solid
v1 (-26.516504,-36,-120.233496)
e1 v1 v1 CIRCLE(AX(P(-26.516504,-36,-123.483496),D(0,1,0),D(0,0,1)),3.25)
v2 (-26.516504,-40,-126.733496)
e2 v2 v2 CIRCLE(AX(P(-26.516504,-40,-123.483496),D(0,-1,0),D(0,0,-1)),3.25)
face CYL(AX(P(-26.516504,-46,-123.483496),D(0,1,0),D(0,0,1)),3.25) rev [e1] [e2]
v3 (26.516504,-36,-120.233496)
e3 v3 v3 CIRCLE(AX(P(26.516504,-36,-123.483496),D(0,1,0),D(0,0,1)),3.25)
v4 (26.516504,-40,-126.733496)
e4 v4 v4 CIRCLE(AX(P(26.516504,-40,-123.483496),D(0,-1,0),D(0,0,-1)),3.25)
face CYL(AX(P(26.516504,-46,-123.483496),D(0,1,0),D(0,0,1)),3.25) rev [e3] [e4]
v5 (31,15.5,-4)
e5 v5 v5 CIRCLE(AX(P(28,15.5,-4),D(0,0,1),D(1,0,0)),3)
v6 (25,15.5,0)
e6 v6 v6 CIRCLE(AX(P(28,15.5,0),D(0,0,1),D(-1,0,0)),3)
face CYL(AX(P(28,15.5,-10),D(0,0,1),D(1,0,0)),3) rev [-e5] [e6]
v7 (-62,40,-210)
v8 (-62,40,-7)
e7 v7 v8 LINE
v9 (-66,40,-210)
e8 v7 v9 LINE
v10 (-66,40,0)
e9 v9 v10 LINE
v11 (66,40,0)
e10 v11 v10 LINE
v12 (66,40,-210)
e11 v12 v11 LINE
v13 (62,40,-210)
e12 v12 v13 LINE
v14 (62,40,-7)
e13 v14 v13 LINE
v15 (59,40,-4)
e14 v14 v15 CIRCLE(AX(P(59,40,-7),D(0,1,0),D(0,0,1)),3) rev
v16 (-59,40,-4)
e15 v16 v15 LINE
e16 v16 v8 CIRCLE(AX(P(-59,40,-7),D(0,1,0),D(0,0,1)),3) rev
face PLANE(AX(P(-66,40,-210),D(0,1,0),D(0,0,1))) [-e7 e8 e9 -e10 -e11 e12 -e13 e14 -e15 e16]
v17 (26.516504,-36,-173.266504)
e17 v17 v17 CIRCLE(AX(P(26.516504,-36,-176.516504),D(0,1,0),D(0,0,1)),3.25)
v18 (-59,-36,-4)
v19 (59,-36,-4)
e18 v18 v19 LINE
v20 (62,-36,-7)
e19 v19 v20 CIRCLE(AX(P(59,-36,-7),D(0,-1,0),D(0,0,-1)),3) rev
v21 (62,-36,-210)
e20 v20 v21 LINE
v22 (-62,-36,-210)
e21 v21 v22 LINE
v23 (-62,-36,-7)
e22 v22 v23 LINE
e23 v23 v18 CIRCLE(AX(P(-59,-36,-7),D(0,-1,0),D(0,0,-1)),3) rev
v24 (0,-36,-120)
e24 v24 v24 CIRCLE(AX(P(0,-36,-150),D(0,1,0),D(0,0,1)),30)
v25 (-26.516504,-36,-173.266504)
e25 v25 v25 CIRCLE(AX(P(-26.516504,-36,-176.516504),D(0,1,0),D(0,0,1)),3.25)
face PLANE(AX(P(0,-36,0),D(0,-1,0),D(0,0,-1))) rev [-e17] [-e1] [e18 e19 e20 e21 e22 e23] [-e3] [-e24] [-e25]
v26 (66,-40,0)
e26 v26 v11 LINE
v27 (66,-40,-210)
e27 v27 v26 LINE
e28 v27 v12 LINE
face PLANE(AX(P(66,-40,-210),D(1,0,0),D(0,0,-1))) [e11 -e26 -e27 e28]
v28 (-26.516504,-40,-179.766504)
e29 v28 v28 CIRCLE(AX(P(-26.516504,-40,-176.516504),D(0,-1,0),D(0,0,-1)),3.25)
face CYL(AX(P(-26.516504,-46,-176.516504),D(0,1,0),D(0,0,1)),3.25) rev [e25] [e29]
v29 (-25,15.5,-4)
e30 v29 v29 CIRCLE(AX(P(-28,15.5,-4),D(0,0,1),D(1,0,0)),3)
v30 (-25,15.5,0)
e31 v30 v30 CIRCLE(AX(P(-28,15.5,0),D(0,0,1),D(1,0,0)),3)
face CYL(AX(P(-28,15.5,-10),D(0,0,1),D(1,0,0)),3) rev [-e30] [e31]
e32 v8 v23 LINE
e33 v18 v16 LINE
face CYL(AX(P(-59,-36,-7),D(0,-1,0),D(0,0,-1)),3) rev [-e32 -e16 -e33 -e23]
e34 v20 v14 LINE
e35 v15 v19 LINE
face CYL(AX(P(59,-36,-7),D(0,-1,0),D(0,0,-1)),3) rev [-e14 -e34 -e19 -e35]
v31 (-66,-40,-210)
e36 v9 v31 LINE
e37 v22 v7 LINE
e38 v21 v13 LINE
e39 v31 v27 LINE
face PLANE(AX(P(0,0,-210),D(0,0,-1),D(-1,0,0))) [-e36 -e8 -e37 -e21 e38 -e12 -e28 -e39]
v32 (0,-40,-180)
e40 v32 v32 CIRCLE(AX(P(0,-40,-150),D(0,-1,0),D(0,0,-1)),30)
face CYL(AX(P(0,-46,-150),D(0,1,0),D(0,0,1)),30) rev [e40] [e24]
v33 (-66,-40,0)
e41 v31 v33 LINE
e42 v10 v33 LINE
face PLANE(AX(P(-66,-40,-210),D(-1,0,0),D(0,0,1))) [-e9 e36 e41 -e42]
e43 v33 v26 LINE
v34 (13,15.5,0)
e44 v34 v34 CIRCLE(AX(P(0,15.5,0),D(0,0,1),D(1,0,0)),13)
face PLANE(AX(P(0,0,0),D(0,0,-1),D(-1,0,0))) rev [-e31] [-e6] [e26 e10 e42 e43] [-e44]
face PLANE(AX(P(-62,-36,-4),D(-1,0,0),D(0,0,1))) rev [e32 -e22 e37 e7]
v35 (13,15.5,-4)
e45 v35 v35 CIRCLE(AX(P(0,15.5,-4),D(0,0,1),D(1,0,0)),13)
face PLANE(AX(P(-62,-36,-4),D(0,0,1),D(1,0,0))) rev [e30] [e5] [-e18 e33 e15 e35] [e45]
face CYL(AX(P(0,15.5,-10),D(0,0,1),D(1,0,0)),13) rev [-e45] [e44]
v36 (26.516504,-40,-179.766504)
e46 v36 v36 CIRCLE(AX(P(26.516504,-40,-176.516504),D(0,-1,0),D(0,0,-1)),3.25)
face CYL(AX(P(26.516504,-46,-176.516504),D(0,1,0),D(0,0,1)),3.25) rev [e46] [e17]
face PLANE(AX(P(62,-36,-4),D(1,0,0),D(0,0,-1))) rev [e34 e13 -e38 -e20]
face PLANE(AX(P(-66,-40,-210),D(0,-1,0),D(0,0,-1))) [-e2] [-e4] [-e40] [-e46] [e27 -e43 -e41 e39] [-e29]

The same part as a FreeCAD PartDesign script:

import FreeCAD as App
import Part
import Sketcher
Q = App.Units.Quantity


def edges_at(feature, points):
    """Names of the edges that pass closest to the given points."""
    edges = feature.Shape.Edges
    near = lambda p: min(range(len(edges)), key=lambda i: edges[i].distToShape(Part.Vertex(*p))[0])
    return sorted({f"Edge{near(p) + 1}" for p in points})


def add_polygon(sketch, points):
    """Adds a closed chain of lines whose ends are joined by coincident constraints."""
    first, n = sketch.GeometryCount, len(points)
    for a, b in zip(points, points[1:] + points[:1]):
        sketch.addGeometry(Part.LineSegment(App.Vector(*a, 0), App.Vector(*b, 0)), False)
    for i in range(n):
        sketch.addConstraint(Sketcher.Constraint("Coincident", first + i, 2, first + (i + 1) % n, 1))

doc = App.newDocument("Part")
params = doc.addObject("Spreadsheet::Sheet", "Params")
for row, (alias, value) in enumerate([
    ("sketch1_width", "132 mm"),
    ("sketch1_height", "80 mm"),
    ("pad1_length", "210 mm"),
    ("sketch2_width", "124 mm"),
    ("sketch2_height", "206 mm"),
    ("pocket1_length", "76 mm"),
    ("sketch3_diameter", "26 mm"),
    ("sketch3_diameter2", "6 mm"),
    ("pocket2_length", "10 mm"),
    ("sketch4_diameter", "60 mm"),
    ("sketch4_diameter2", "6.5 mm"),
    ("pocket3_length", "10 mm"),
    ("fillet_radius", "3 mm"),
], start=1):
    params.set(f"A{row}", alias)
    params.set(f"B{row}", "=" + value)
    params.setAlias(f"B{row}", alias)

body = doc.addObject("PartDesign::Body", "Body")

sketch1 = body.newObject("Sketcher::SketchObject", "Sketch")
sketch1.AttachmentSupport = (doc.getObject("XY_Plane"), [""])
sketch1.MapMode = "FlatFace"
add_polygon(sketch1, [(-66, 40), (-66, -40), (66, -40), (66, 40)])
sketch1.addConstraint(Sketcher.Constraint("Vertical", 0))
sketch1.addConstraint(Sketcher.Constraint("Horizontal", 1))
sketch1.addConstraint(Sketcher.Constraint("Vertical", 2))
sketch1.addConstraint(Sketcher.Constraint("Horizontal", 3))
sketch1.addConstraint(Sketcher.Constraint("Symmetric", 0, 2, 2, 2, -1, 1))
sketch1.addConstraint(Sketcher.Constraint("DistanceX", 1, 1, 1, 2, Q("132 mm")))
sketch1.addConstraint(Sketcher.Constraint("DistanceY", 0, 2, 0, 1, Q("80 mm")))
sketch1.setExpression("Constraints[9]", "Params.sketch1_width")
sketch1.setExpression("Constraints[10]", "Params.sketch1_height")
pad1 = body.newObject("PartDesign::Pad", "Pad")
pad1.Profile = sketch1
pad1.setExpression("Length", "Params.pad1_length")
pad1.Reversed = True

sketch2 = body.newObject("Sketcher::SketchObject", "Sketch001")
sketch2.AttachmentSupport = (doc.getObject("XZ_Plane"), [""])
sketch2.MapMode = "FlatFace"
sketch2.AttachmentOffset = App.Placement(App.Vector(0, 0, -40), App.Rotation())
add_polygon(sketch2, [(-62, -210), (-62, -4), (62, -4), (62, -210)])
sketch2.addConstraint(Sketcher.Constraint("Vertical", 0))
sketch2.addConstraint(Sketcher.Constraint("Horizontal", 1))
sketch2.addConstraint(Sketcher.Constraint("Vertical", 2))
sketch2.addConstraint(Sketcher.Constraint("Horizontal", 3))
sketch2.addConstraint(Sketcher.Constraint("DistanceX", 1, 1, 1, 2, Q("124 mm")))
sketch2.addConstraint(Sketcher.Constraint("DistanceY", 0, 1, 0, 2, Q("206 mm")))
sketch2.addConstraint(Sketcher.Constraint("DistanceX", 0, 2, -1, 1, Q("62 mm")))
sketch2.addConstraint(Sketcher.Constraint("DistanceY", 0, 2, -1, 1, Q("4 mm")))
sketch2.setExpression("Constraints[8]", "Params.sketch2_width")
sketch2.setExpression("Constraints[9]", "Params.sketch2_height")
pocket1 = body.newObject("PartDesign::Pocket", "Pocket")
pocket1.Profile = sketch2
pocket1.setExpression("Length", "Params.pocket1_length")
pocket1.Reversed = True

sketch3 = body.newObject("Sketcher::SketchObject", "Sketch002")
sketch3.AttachmentSupport = (doc.getObject("XY_Plane"), [""])
sketch3.MapMode = "FlatFace"
sketch3.addGeometry(Part.Circle(App.Vector(0, 15.5, 0), App.Vector(0, 0, 1), 13), False)
sketch3.addGeometry(Part.Circle(App.Vector(-28, 15.5, 0), App.Vector(0, 0, 1), 3), False)
sketch3.addGeometry(Part.Circle(App.Vector(28, 15.5, 0), App.Vector(0, 0, 1), 3), False)
sketch3.addConstraint(Sketcher.Constraint("Equal", 1, 2))
sketch3.addConstraint(Sketcher.Constraint("Symmetric", 1, 3, 2, 3, -2))
sketch3.addConstraint(Sketcher.Constraint("PointOnObject", 0, 3, -2))
sketch3.addConstraint(Sketcher.Constraint("Horizontal", 0, 3, 1, 3))
sketch3.addConstraint(Sketcher.Constraint("Diameter", 0, Q("26 mm")))
sketch3.addConstraint(Sketcher.Constraint("Diameter", 1, Q("6 mm")))
sketch3.addConstraint(Sketcher.Constraint("DistanceX", 1, 3, -1, 1, Q("28 mm")))
sketch3.addConstraint(Sketcher.Constraint("DistanceY", -1, 1, 0, 3, Q("15.5 mm")))
sketch3.setExpression("Constraints[4]", "Params.sketch3_diameter")
sketch3.setExpression("Constraints[5]", "Params.sketch3_diameter2")
pocket2 = body.newObject("PartDesign::Pocket", "Pocket001")
pocket2.Profile = sketch3
pocket2.setExpression("Length", "Params.pocket2_length")

sketch4 = body.newObject("Sketcher::SketchObject", "Sketch003")
sketch4.AttachmentSupport = (doc.getObject("XZ_Plane"), [""])
sketch4.MapMode = "FlatFace"
sketch4.AttachmentOffset = App.Placement(App.Vector(0, 0, 36), App.Rotation())
sketch4.addGeometry(Part.Circle(App.Vector(26.516504, -176.516504, 0), App.Vector(0, 0, 1), 3.25), False)
sketch4.addGeometry(Part.Circle(App.Vector(26.516504, -123.483496, 0), App.Vector(0, 0, 1), 3.25), False)
sketch4.addGeometry(Part.Circle(App.Vector(-26.516504, -123.483496, 0), App.Vector(0, 0, 1), 3.25), False)
sketch4.addGeometry(Part.Circle(App.Vector(-26.516504, -176.516504, 0), App.Vector(0, 0, 1), 3.25), False)
sketch4.addGeometry(Part.Circle(App.Vector(0, -150, 0), App.Vector(0, 0, 1), 30), False)
sketch4.addConstraint(Sketcher.Constraint("Equal", 0, 1))
sketch4.addConstraint(Sketcher.Constraint("Equal", 1, 2))
sketch4.addConstraint(Sketcher.Constraint("Equal", 2, 3))
sketch4.addConstraint(Sketcher.Constraint("Symmetric", 1, 3, 2, 3, -2))
sketch4.addConstraint(Sketcher.Constraint("Symmetric", 0, 3, 3, 3, -2))
sketch4.addConstraint(Sketcher.Constraint("PointOnObject", 4, 3, -2))
sketch4.addConstraint(Sketcher.Constraint("Vertical", 0, 3, 1, 3))
sketch4.addConstraint(Sketcher.Constraint("Diameter", 4, Q("60 mm")))
sketch4.addConstraint(Sketcher.Constraint("Diameter", 0, Q("6.5 mm")))
sketch4.addConstraint(Sketcher.Constraint("DistanceY", 4, 3, -1, 1, Q("150 mm")))
sketch4.addConstraint(Sketcher.Constraint("DistanceY", 0, 3, 1, 3, Q("53.033009 mm")))
sketch4.addConstraint(Sketcher.Constraint("DistanceX", 2, 3, 1, 3, Q("53.033009 mm")))
sketch4.addConstraint(Sketcher.Constraint("DistanceY", 0, 3, -1, 1, Q("176.516504 mm")))
sketch4.setExpression("Constraints[7]", "Params.sketch4_diameter")
sketch4.setExpression("Constraints[8]", "Params.sketch4_diameter2")
pocket3 = body.newObject("PartDesign::Pocket", "Pocket002")
pocket3.Profile = sketch4
pocket3.setExpression("Length", "Params.pocket3_length")
pocket3.Reversed = True
doc.recompute()

fillet = body.newObject("PartDesign::Fillet", "Fillet")
fillet.Base = (pocket3, edges_at(pocket3, [(-62, 2, -4), (62, 2, -4)]))
fillet.setExpression("Radius", "Params.fillet_radius")

doc.recompute()
